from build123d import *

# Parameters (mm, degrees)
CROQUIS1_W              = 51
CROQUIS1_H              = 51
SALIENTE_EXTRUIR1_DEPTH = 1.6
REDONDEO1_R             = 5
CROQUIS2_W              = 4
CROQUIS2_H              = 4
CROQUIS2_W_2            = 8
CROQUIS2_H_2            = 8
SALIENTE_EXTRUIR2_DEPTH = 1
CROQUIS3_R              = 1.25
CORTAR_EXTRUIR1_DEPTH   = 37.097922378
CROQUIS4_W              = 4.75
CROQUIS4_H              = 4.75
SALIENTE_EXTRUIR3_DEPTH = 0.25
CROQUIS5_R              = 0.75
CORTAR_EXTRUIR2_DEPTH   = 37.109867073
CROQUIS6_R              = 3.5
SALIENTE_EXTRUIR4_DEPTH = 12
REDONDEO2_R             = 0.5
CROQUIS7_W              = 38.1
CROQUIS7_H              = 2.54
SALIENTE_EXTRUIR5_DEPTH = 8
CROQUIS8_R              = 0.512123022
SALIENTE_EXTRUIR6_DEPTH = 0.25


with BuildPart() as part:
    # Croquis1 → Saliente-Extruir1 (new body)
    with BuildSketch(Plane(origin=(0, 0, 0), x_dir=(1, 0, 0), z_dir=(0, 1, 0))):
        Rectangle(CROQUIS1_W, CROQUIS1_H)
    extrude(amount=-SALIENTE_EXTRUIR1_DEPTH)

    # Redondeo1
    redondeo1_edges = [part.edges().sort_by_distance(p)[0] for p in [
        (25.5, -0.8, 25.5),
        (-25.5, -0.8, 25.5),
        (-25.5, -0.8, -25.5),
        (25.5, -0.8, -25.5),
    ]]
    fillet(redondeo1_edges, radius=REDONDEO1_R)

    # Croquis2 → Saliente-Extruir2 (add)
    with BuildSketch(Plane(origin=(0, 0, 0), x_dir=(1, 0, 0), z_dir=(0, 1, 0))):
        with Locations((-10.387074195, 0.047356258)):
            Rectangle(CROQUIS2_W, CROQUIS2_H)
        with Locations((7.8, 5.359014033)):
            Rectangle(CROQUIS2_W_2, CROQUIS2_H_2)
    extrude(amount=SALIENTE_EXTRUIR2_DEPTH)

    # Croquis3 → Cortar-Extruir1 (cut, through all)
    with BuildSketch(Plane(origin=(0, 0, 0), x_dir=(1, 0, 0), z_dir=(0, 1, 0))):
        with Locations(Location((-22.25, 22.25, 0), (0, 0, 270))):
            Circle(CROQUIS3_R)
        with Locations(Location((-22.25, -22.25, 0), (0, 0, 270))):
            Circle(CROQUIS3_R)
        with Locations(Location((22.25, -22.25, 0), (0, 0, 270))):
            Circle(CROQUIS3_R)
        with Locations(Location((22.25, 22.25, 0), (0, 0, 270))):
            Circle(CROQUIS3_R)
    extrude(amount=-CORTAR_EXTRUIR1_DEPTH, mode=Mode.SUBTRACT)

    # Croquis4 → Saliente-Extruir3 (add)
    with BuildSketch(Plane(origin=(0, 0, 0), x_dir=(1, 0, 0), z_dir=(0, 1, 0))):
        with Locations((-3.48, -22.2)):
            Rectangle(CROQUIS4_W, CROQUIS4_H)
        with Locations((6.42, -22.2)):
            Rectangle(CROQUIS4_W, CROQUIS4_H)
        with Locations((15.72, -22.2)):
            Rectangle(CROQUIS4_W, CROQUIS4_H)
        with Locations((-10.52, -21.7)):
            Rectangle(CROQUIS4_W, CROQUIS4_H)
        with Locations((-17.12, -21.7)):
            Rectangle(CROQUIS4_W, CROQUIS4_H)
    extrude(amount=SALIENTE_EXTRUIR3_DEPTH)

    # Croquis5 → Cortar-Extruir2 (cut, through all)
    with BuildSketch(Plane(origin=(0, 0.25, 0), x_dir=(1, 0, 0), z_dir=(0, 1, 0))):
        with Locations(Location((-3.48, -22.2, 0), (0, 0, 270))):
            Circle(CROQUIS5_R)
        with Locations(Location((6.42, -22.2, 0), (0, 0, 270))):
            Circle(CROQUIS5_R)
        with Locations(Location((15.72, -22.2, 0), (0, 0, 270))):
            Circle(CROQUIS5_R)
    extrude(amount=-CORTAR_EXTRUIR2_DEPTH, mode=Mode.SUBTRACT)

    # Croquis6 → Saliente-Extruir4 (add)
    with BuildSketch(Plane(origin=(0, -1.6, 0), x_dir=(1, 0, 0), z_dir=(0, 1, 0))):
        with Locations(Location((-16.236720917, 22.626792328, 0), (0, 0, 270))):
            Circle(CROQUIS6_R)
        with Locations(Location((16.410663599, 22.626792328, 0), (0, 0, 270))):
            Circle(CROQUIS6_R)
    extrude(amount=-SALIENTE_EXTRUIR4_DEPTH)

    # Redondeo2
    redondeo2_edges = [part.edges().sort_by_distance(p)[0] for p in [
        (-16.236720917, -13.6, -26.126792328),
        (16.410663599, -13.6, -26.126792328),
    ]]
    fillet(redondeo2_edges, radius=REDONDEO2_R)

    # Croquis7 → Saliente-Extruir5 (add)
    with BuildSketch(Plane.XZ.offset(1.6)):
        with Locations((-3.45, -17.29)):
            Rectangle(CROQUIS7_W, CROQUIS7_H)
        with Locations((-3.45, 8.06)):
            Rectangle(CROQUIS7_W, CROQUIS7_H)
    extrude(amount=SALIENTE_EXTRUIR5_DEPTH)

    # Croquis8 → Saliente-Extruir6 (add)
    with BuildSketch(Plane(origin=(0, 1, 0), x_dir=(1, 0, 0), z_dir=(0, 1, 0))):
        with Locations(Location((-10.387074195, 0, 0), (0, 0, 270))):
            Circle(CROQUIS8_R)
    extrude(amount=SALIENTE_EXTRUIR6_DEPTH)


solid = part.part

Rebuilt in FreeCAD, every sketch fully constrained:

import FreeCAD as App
import Part
import Sketcher
Q = App.Units.Quantity


def edges_at(feature, points):
    """Names of the edges that pass closest to the given points."""
    edges = feature.Shape.Edges
    near = lambda p: min(range(len(edges)), key=lambda i: edges[i].distToShape(Part.Vertex(*p))[0])
    return sorted({f"Edge{near(p) + 1}" for p in points})

doc = App.newDocument("Part")
body = doc.addObject("PartDesign::Body", "Body")

sketch1 = body.newObject("Sketcher::SketchObject", "Sketch")
sketch1.AttachmentSupport = (doc.getObject("XZ_Plane"), [""])
sketch1.MapMode = "FlatFace"
sketch1.addGeometry(Part.LineSegment(App.Vector(-26, -26, 0), App.Vector(-26, 26, 0)), False)
sketch1.addGeometry(Part.LineSegment(App.Vector(-26, 26, 0), App.Vector(26, 26, 0)), False)
sketch1.addGeometry(Part.LineSegment(App.Vector(26, 26, 0), App.Vector(26, -26, 0)), False)
sketch1.addGeometry(Part.LineSegment(App.Vector(26, -26, 0), App.Vector(-26, -26, 0)), False)
sketch1.addConstraint(Sketcher.Constraint("Coincident", 0, 2, 1, 1))
sketch1.addConstraint(Sketcher.Constraint("Coincident", 1, 2, 2, 1))
sketch1.addConstraint(Sketcher.Constraint("Coincident", 2, 2, 3, 1))
sketch1.addConstraint(Sketcher.Constraint("Coincident", 3, 2, 0, 1))
sketch1.addConstraint(Sketcher.Constraint("Vertical", 0))
sketch1.addConstraint(Sketcher.Constraint("Horizontal", 1))
sketch1.addConstraint(Sketcher.Constraint("Vertical", 2))
sketch1.addConstraint(Sketcher.Constraint("Horizontal", 3))
sketch1.addConstraint(Sketcher.Constraint("Symmetric", 0, 2, 2, 2, -1, 1))
sketch1.addConstraint(Sketcher.Constraint("Equal", 3, 0))
sketch1.addConstraint(Sketcher.Constraint("DistanceX", 1, 1, 1, 2, Q("51 mm")))
pad1 = body.newObject("PartDesign::Pad", "Pad")
pad1.Profile = sketch1
pad1.Length = 1.6
doc.recompute()

fillet = body.newObject("PartDesign::Fillet", "Fillet")
fillet.Base = (pad1, edges_at(pad1, [
    (25.5, -0.8, 25.5),
    (-25.5, -0.8, 25.5),
    (-25.5, -0.8, -25.5),
    (25.5, -0.8, -25.5),
]))
fillet.Radius = 5

sketch2 = body.newObject("Sketcher::SketchObject", "Sketch001")
sketch2.AttachmentSupport = (doc.getObject("XZ_Plane"), [""])
sketch2.MapMode = "FlatFace"
sketch2.addGeometry(Part.LineSegment(App.Vector(-12.4, -2, 0), App.Vector(-12.4, 2, 0)), False)
sketch2.addGeometry(Part.LineSegment(App.Vector(-12.4, 2, 0), App.Vector(-8.4, 2, 0)), False)
sketch2.addGeometry(Part.LineSegment(App.Vector(-8.4, 2, 0), App.Vector(-8.4, -2, 0)), False)
sketch2.addGeometry(Part.LineSegment(App.Vector(-8.4, -2, 0), App.Vector(-12.4, -2, 0)), False)
sketch2.addGeometry(Part.LineSegment(App.Vector(3.8, -9.4, 0), App.Vector(3.8, -1.4, 0)), False)
sketch2.addGeometry(Part.LineSegment(App.Vector(3.8, -1.4, 0), App.Vector(11.8, -1.4, 0)), False)
sketch2.addGeometry(Part.LineSegment(App.Vector(11.8, -1.4, 0), App.Vector(11.8, -9.4, 0)), False)
sketch2.addGeometry(Part.LineSegment(App.Vector(11.8, -9.4, 0), App.Vector(3.8, -9.4, 0)), False)
sketch2.addConstraint(Sketcher.Constraint("Coincident", 0, 2, 1, 1))
sketch2.addConstraint(Sketcher.Constraint("Coincident", 1, 2, 2, 1))
sketch2.addConstraint(Sketcher.Constraint("Coincident", 2, 2, 3, 1))
sketch2.addConstraint(Sketcher.Constraint("Coincident", 3, 2, 0, 1))
sketch2.addConstraint(Sketcher.Constraint("Coincident", 4, 2, 5, 1))
sketch2.addConstraint(Sketcher.Constraint("Coincident", 5, 2, 6, 1))
sketch2.addConstraint(Sketcher.Constraint("Coincident", 6, 2, 7, 1))
sketch2.addConstraint(Sketcher.Constraint("Coincident", 7, 2, 4, 1))
sketch2.addConstraint(Sketcher.Constraint("Vertical", 0))
sketch2.addConstraint(Sketcher.Constraint("Horizontal", 1))
sketch2.addConstraint(Sketcher.Constraint("Vertical", 2))
sketch2.addConstraint(Sketcher.Constraint("Horizontal", 3))
sketch2.addConstraint(Sketcher.Constraint("Vertical", 4))
sketch2.addConstraint(Sketcher.Constraint("Horizontal", 5))
sketch2.addConstraint(Sketcher.Constraint("Vertical", 6))
sketch2.addConstraint(Sketcher.Constraint("Horizontal", 7))
sketch2.addConstraint(Sketcher.Constraint("Equal", 3, 0))
sketch2.addConstraint(Sketcher.Constraint("Equal", 7, 4))
sketch2.addConstraint(Sketcher.Constraint("DistanceX", 1, 1, 1, 2, Q("4 mm")))
sketch2.addConstraint(Sketcher.Constraint("DistanceX", 5, 1, 5, 2, Q("8 mm")))
sketch2.addConstraint(Sketcher.Constraint("DistanceX", -1, 1, 4, 2, Q("3.8 mm")))
sketch2.addConstraint(Sketcher.Constraint("DistanceX", 0, 2, -1, 1, Q("12.387074 mm")))
sketch2.addConstraint(Sketcher.Constraint("DistanceY", -1, 1, 0, 2, Q("1.952644 mm")))
sketch2.addConstraint(Sketcher.Constraint("DistanceY", 4, 2, -1, 1, Q("1.359014 mm")))
pad2 = body.newObject("PartDesign::Pad", "Pad001")
pad2.Profile = sketch2
pad2.Length = 1
pad2.Reversed = True

sketch3 = body.newObject("Sketcher::SketchObject", "Sketch002")
sketch3.AttachmentSupport = (doc.getObject("XZ_Plane"), [""])
sketch3.MapMode = "FlatFace"
sketch3.addGeometry(Part.Circle(App.Vector(-22.2, -22.2, 0), App.Vector(0, 0, 1), 1.2), False)
sketch3.addGeometry(Part.Circle(App.Vector(-22.2, 22.2, 0), App.Vector(0, 0, 1), 1.2), False)
sketch3.addGeometry(Part.Circle(App.Vector(22.2, 22.2, 0), App.Vector(0, 0, 1), 1.2), False)
sketch3.addGeometry(Part.Circle(App.Vector(22.2, -22.2, 0), App.Vector(0, 0, 1), 1.2), False)
sketch3.addConstraint(Sketcher.Constraint("Equal", 0, 1))
sketch3.addConstraint(Sketcher.Constraint("Equal", 1, 2))
sketch3.addConstraint(Sketcher.Constraint("Equal", 2, 3))
sketch3.addConstraint(Sketcher.Constraint("Symmetric", 0, 3, 2, 3, -1, 1))
sketch3.addConstraint(Sketcher.Constraint("Symmetric", 1, 3, 3, 3, -1, 1))
sketch3.addConstraint(Sketcher.Constraint("Symmetric", 1, 3, 2, 3, -2))
sketch3.addConstraint(Sketcher.Constraint("Diameter", 0, Q("2.5 mm")))
sketch3.addConstraint(Sketcher.Constraint("DistanceY", 0, 3, 1, 3, Q("44.5 mm")))
sketch3.addConstraint(Sketcher.Constraint("DistanceX", 1, 3, 2, 3, Q("44.5 mm")))
pocket1 = body.newObject("PartDesign::Pocket", "Pocket")
pocket1.Profile = sketch3
pocket1.Type = "ThroughAll"
pocket1.Reversed = True

sketch4 = body.newObject("Sketcher::SketchObject", "Sketch003")
sketch4.AttachmentSupport = (doc.getObject("XZ_Plane"), [""])
sketch4.MapMode = "FlatFace"
sketch4.addGeometry(Part.LineSegment(App.Vector(-5.9, 19.8, 0), App.Vector(-5.9, 24.6, 0)), False)
sketch4.addGeometry(Part.LineSegment(App.Vector(-5.9, 24.6, 0), App.Vector(-1.1, 24.6, 0)), False)
sketch4.addGeometry(Part.LineSegment(App.Vector(-1.1, 24.6, 0), App.Vector(-1.1, 19.8, 0)), False)
sketch4.addGeometry(Part.LineSegment(App.Vector(-1.1, 19.8, 0), App.Vector(-5.9, 19.8, 0)), False)
sketch4.addGeometry(Part.LineSegment(App.Vector(4, 19.8, 0), App.Vector(4, 24.6, 0)), False)
sketch4.addGeometry(Part.LineSegment(App.Vector(4, 24.6, 0), App.Vector(8.8, 24.6, 0)), False)
sketch4.addGeometry(Part.LineSegment(App.Vector(8.8, 24.6, 0), App.Vector(8.8, 19.8, 0)), False)
sketch4.addGeometry(Part.LineSegment(App.Vector(8.8, 19.8, 0), App.Vector(4, 19.8, 0)), False)
sketch4.addGeometry(Part.LineSegment(App.Vector(13.3, 19.8, 0), App.Vector(13.3, 24.6, 0)), False)
sketch4.addGeometry(Part.LineSegment(App.Vector(13.3, 24.6, 0), App.Vector(18.1, 24.6, 0)), False)
sketch4.addGeometry(Part.LineSegment(App.Vector(18.1, 24.6, 0), App.Vector(18.1, 19.8, 0)), False)
sketch4.addGeometry(Part.LineSegment(App.Vector(18.1, 19.8, 0), App.Vector(13.3, 19.8, 0)), False)
sketch4.addGeometry(Part.LineSegment(App.Vector(-12.9, 19.3, 0), App.Vector(-12.9, 24.1, 0)), False)
sketch4.addGeometry(Part.LineSegment(App.Vector(-12.9, 24.1, 0), App.Vector(-8.1, 24.1, 0)), False)
sketch4.addGeometry(Part.LineSegment(App.Vector(-8.1, 24.1, 0), App.Vector(-8.1, 19.3, 0)), False)
sketch4.addGeometry(Part.LineSegment(App.Vector(-8.1, 19.3, 0), App.Vector(-12.9, 19.3, 0)), False)
sketch4.addGeometry(Part.LineSegment(App.Vector(-19.5, 19.3, 0), App.Vector(-19.5, 24.1, 0)), False)
sketch4.addGeometry(Part.LineSegment(App.Vector(-19.5, 24.1, 0), App.Vector(-14.7, 24.1, 0)), False)
sketch4.addGeometry(Part.LineSegment(App.Vector(-14.7, 24.1, 0), App.Vector(-14.7, 19.3, 0)), False)
sketch4.addGeometry(Part.LineSegment(App.Vector(-14.7, 19.3, 0), App.Vector(-19.5, 19.3, 0)), False)
sketch4.addConstraint(Sketcher.Constraint("Coincident", 0, 2, 1, 1))
sketch4.addConstraint(Sketcher.Constraint("Coincident", 1, 2, 2, 1))
sketch4.addConstraint(Sketcher.Constraint("Coincident", 2, 2, 3, 1))
sketch4.addConstraint(Sketcher.Constraint("Coincident", 3, 2, 0, 1))
sketch4.addConstraint(Sketcher.Constraint("Coincident", 4, 2, 5, 1))
sketch4.addConstraint(Sketcher.Constraint("Coincident", 5, 2, 6, 1))
sketch4.addConstraint(Sketcher.Constraint("Coincident", 6, 2, 7, 1))
sketch4.addConstraint(Sketcher.Constraint("Coincident", 7, 2, 4, 1))
sketch4.addConstraint(Sketcher.Constraint("Coincident", 8, 2, 9, 1))
sketch4.addConstraint(Sketcher.Constraint("Coincident", 9, 2, 10, 1))
sketch4.addConstraint(Sketcher.Constraint("Coincident", 10, 2, 11, 1))
sketch4.addConstraint(Sketcher.Constraint("Coincident", 11, 2, 8, 1))
sketch4.addConstraint(Sketcher.Constraint("Coincident", 12, 2, 13, 1))
sketch4.addConstraint(Sketcher.Constraint("Coincident", 13, 2, 14, 1))
sketch4.addConstraint(Sketcher.Constraint("Coincident", 14, 2, 15, 1))
sketch4.addConstraint(Sketcher.Constraint("Coincident", 15, 2, 12, 1))
sketch4.addConstraint(Sketcher.Constraint("Coincident", 16, 2, 17, 1))
sketch4.addConstraint(Sketcher.Constraint("Coincident", 17, 2, 18, 1))
sketch4.addConstraint(Sketcher.Constraint("Coincident", 18, 2, 19, 1))
sketch4.addConstraint(Sketcher.Constraint("Coincident", 19, 2, 16, 1))
sketch4.addConstraint(Sketcher.Constraint("Vertical", 0))
sketch4.addConstraint(Sketcher.Constraint("Horizontal", 1))
sketch4.addConstraint(Sketcher.Constraint("Vertical", 2))
sketch4.addConstraint(Sketcher.Constraint("Horizontal", 3))
sketch4.addConstraint(Sketcher.Constraint("Vertical", 4))
sketch4.addConstraint(Sketcher.Constraint("Horizontal", 5))
sketch4.addConstraint(Sketcher.Constraint("Vertical", 6))
sketch4.addConstraint(Sketcher.Constraint("Horizontal", 7))
sketch4.addConstraint(Sketcher.Constraint("Vertical", 8))
sketch4.addConstraint(Sketcher.Constraint("Horizontal", 9))
sketch4.addConstraint(Sketcher.Constraint("Vertical", 10))
sketch4.addConstraint(Sketcher.Constraint("Horizontal", 11))
sketch4.addConstraint(Sketcher.Constraint("Vertical", 12))
sketch4.addConstraint(Sketcher.Constraint("Horizontal", 13))
sketch4.addConstraint(Sketcher.Constraint("Vertical", 14))
sketch4.addConstraint(Sketcher.Constraint("Horizontal", 15))
sketch4.addConstraint(Sketcher.Constraint("Vertical", 16))
sketch4.addConstraint(Sketcher.Constraint("Horizontal", 17))
sketch4.addConstraint(Sketcher.Constraint("Vertical", 18))
sketch4.addConstraint(Sketcher.Constraint("Horizontal", 19))
sketch4.addConstraint(Sketcher.Constraint("Horizontal", 1, 2, 4, 2))
sketch4.addConstraint(Sketcher.Constraint("Horizontal", 3, 2, 6, 2))
sketch4.addConstraint(Sketcher.Constraint("Horizontal", 5, 2, 8, 2))
sketch4.addConstraint(Sketcher.Constraint("Horizontal", 7, 2, 10, 2))
sketch4.addConstraint(Sketcher.Constraint("Horizontal", 13, 2, 16, 2))
sketch4.addConstraint(Sketcher.Constraint("Horizontal", 15, 2, 18, 2))
sketch4.addConstraint(Sketcher.Constraint("Equal", 3, 5))
sketch4.addConstraint(Sketcher.Constraint("Equal", 7, 9))
sketch4.addConstraint(Sketcher.Constraint("Equal", 11, 13))
sketch4.addConstraint(Sketcher.Constraint("Equal", 15, 17))
sketch4.addConstraint(Sketcher.Constraint("Equal", 19, 0))
sketch4.addConstraint(Sketcher.Constraint("Equal", 10, 12))
sketch4.addConstraint(Sketcher.Constraint("DistanceX", 1, 1, 1, 2, Q("4.75 mm")))
sketch4.addConstraint(Sketcher.Constraint("DistanceX", 0, 2, 4, 2, Q("9.9 mm")))
sketch4.addConstraint(Sketcher.Constraint("DistanceX", 4, 2, 8, 2, Q("9.3 mm")))
sketch4.addConstraint(Sketcher.Constraint("DistanceY", 12, 2, 0, 2, Q("0.5 mm")))
sketch4.addConstraint(Sketcher.Constraint("DistanceX", 16, 2, 12, 2, Q("6.6 mm")))
sketch4.addConstraint(Sketcher.Constraint("DistanceX", 12, 2, 0, 2, Q("7.04 mm")))
sketch4.addConstraint(Sketcher.Constraint("DistanceX", 0, 2, -1, 1, Q("5.855 mm")))
sketch4.addConstraint(Sketcher.Constraint("DistanceY", -1, 1, 0, 2, Q("24.575 mm")))
pad3 = body.newObject("PartDesign::Pad", "Pad002")
pad3.Profile = sketch4
pad3.Length = 0.25
pad3.Reversed = True

sketch5 = body.newObject("Sketcher::SketchObject", "Sketch004")
sketch5.AttachmentSupport = (doc.getObject("XZ_Plane"), [""])
sketch5.MapMode = "FlatFace"
sketch5.AttachmentOffset = App.Placement(App.Vector(0, 0, -0.25), App.Rotation())
sketch5.addGeometry(Part.Circle(App.Vector(-3.5, 22.2, 0), App.Vector(0, 0, 1), 0.8), False)
sketch5.addGeometry(Part.Circle(App.Vector(6.4, 22.2, 0), App.Vector(0, 0, 1), 0.8), False)
sketch5.addGeometry(Part.Circle(App.Vector(15.7, 22.2, 0), App.Vector(0, 0, 1), 0.8), False)
sketch5.addConstraint(Sketcher.Constraint("Equal", 0, 1))
sketch5.addConstraint(Sketcher.Constraint("Equal", 1, 2))
sketch5.addConstraint(Sketcher.Constraint("Horizontal", 0, 3, 1, 3))
sketch5.addConstraint(Sketcher.Constraint("Horizontal", 1, 3, 2, 3))
sketch5.addConstraint(Sketcher.Constraint("Diameter", 0, Q("1.5 mm")))
sketch5.addConstraint(Sketcher.Constraint("DistanceY", -1, 1, 0, 3, Q("22.2 mm")))
sketch5.addConstraint(Sketcher.Constraint("DistanceX", 0, 3, 1, 3, Q("9.9 mm")))
sketch5.addConstraint(Sketcher.Constraint("DistanceX", 1, 3, 2, 3, Q("9.3 mm")))
sketch5.addConstraint(Sketcher.Constraint("DistanceX", 0, 3, -1, 1, Q("3.48 mm")))
pocket2 = body.newObject("PartDesign::Pocket", "Pocket001")
pocket2.Profile = sketch5
pocket2.Type = "ThroughAll"
pocket2.Reversed = True

sketch6 = body.newObject("Sketcher::SketchObject", "Sketch005")
sketch6.AttachmentSupport = (doc.getObject("XZ_Plane"), [""])
sketch6.MapMode = "FlatFace"
sketch6.AttachmentOffset = App.Placement(App.Vector(0, 0, 1.6), App.Rotation())
sketch6.addGeometry(Part.Circle(App.Vector(-16.2, -22.6, 0), App.Vector(0, 0, 1), 3.5), False)
sketch6.addGeometry(Part.Circle(App.Vector(16.4, -22.6, 0), App.Vector(0, 0, 1), 3.5), False)
sketch6.addConstraint(Sketcher.Constraint("Equal", 0, 1))
sketch6.addConstraint(Sketcher.Constraint("Horizontal", 0, 3, 1, 3))
sketch6.addConstraint(Sketcher.Constraint("Diameter", 0, Q("7 mm")))
sketch6.addConstraint(Sketcher.Constraint("DistanceX", 0, 3, -1, 1, Q("16.236721 mm")))
sketch6.addConstraint(Sketcher.Constraint("DistanceY", 0, 3, -1, 1, Q("22.626792 mm")))
sketch6.addConstraint(Sketcher.Constraint("DistanceX", -1, 1, 1, 3, Q("16.410664 mm")))
pad4 = body.newObject("PartDesign::Pad", "Pad003")
pad4.Profile = sketch6
pad4.Length = 12
doc.recompute()

fillet2 = body.newObject("PartDesign::Fillet", "Fillet001")
fillet2.Base = (pad4, edges_at(pad4, [(-16.237, -13.6, -26.127), (16.411, -13.6, -26.127)]))
fillet2.Radius = 0.5

sketch7 = body.newObject("Sketcher::SketchObject", "Sketch006")
sketch7.AttachmentSupport = (doc.getObject("XZ_Plane"), [""])
sketch7.MapMode = "FlatFace"
sketch7.AttachmentOffset = App.Placement(App.Vector(0, 0, 1.6), App.Rotation())
sketch7.addGeometry(Part.LineSegment(App.Vector(-22.5, -16, 0), App.Vector(-22.5, -18.6, 0)), False)
sketch7.addGeometry(Part.LineSegment(App.Vector(-22.5, -18.6, 0), App.Vector(15.6, -18.6, 0)), False)
sketch7.addGeometry(Part.LineSegment(App.Vector(15.6, -18.6, 0), App.Vector(15.6, -16, 0)), False)
sketch7.addGeometry(Part.LineSegment(App.Vector(15.6, -16, 0), App.Vector(-22.5, -16, 0)), False)
sketch7.addGeometry(Part.LineSegment(App.Vector(-22.5, 9.3, 0), App.Vector(-22.5, 6.8, 0)), False)
sketch7.addGeometry(Part.LineSegment(App.Vector(-22.5, 6.8, 0), App.Vector(15.6, 6.8, 0)), False)
sketch7.addGeometry(Part.LineSegment(App.Vector(15.6, 6.8, 0), App.Vector(15.6, 9.3, 0)), False)
sketch7.addGeometry(Part.LineSegment(App.Vector(15.6, 9.3, 0), App.Vector(-22.5, 9.3, 0)), False)
sketch7.addConstraint(Sketcher.Constraint("Coincident", 0, 2, 1, 1))
sketch7.addConstraint(Sketcher.Constraint("Coincident", 1, 2, 2, 1))
sketch7.addConstraint(Sketcher.Constraint("Coincident", 2, 2, 3, 1))
sketch7.addConstraint(Sketcher.Constraint("Coincident", 3, 2, 0, 1))
sketch7.addConstraint(Sketcher.Constraint("Coincident", 4, 2, 5, 1))
sketch7.addConstraint(Sketcher.Constraint("Coincident", 5, 2, 6, 1))
sketch7.addConstraint(Sketcher.Constraint("Coincident", 6, 2, 7, 1))
sketch7.addConstraint(Sketcher.Constraint("Coincident", 7, 2, 4, 1))
sketch7.addConstraint(Sketcher.Constraint("Vertical", 0))
sketch7.addConstraint(Sketcher.Constraint("Horizontal", 1))
sketch7.addConstraint(Sketcher.Constraint("Vertical", 2))
sketch7.addConstraint(Sketcher.Constraint("Horizontal", 3))
sketch7.addConstraint(Sketcher.Constraint("Vertical", 4))
sketch7.addConstraint(Sketcher.Constraint("Horizontal", 5))
sketch7.addConstraint(Sketcher.Constraint("Vertical", 6))
sketch7.addConstraint(Sketcher.Constraint("Horizontal", 7))
sketch7.addConstraint(Sketcher.Constraint("Vertical", 3, 2, 4, 2))
sketch7.addConstraint(Sketcher.Constraint("Vertical", 2, 2, 5, 2))
sketch7.addConstraint(Sketcher.Constraint("Equal", 2, 4))
sketch7.addConstraint(Sketcher.Constraint("DistanceX", 1, 1, 1, 2, Q("38.1 mm")))
sketch7.addConstraint(Sketcher.Constraint("DistanceY", 0, 2, 0, 1, Q("2.54 mm")))
sketch7.addConstraint(Sketcher.Constraint("DistanceX", 0, 2, -1, 1, Q("22.5 mm")))
sketch7.addConstraint(Sketcher.Constraint("DistanceY", 0, 2, -1, 1, Q("18.56 mm")))
sketch7.addConstraint(Sketcher.Constraint("DistanceY", -1, 1, 4, 2, Q("6.79 mm")))
pad5 = body.newObject("PartDesign::Pad", "Pad004")
pad5.Profile = sketch7
pad5.Length = 8

sketch8 = body.newObject("Sketcher::SketchObject", "Sketch007")
sketch8.AttachmentSupport = (doc.getObject("XZ_Plane"), [""])
sketch8.MapMode = "FlatFace"
sketch8.AttachmentOffset = App.Placement(App.Vector(0, 0, -1), App.Rotation())
sketch8.addGeometry(Part.Circle(App.Vector(-10.4, 0, 0), App.Vector(0, 0, 1), 0.5), False)
sketch8.addConstraint(Sketcher.Constraint("PointOnObject", 0, 3, -1))
sketch8.addConstraint(Sketcher.Constraint("Diameter", 0, Q("1.024246 mm")))
sketch8.addConstraint(Sketcher.Constraint("DistanceX", 0, 3, -1, 1, Q("10.387074 mm")))
pad6 = body.newObject("PartDesign::Pad", "Pad005")
pad6.Profile = sketch8
pad6.Length = 0.25
pad6.Reversed = True

doc.recompute()
